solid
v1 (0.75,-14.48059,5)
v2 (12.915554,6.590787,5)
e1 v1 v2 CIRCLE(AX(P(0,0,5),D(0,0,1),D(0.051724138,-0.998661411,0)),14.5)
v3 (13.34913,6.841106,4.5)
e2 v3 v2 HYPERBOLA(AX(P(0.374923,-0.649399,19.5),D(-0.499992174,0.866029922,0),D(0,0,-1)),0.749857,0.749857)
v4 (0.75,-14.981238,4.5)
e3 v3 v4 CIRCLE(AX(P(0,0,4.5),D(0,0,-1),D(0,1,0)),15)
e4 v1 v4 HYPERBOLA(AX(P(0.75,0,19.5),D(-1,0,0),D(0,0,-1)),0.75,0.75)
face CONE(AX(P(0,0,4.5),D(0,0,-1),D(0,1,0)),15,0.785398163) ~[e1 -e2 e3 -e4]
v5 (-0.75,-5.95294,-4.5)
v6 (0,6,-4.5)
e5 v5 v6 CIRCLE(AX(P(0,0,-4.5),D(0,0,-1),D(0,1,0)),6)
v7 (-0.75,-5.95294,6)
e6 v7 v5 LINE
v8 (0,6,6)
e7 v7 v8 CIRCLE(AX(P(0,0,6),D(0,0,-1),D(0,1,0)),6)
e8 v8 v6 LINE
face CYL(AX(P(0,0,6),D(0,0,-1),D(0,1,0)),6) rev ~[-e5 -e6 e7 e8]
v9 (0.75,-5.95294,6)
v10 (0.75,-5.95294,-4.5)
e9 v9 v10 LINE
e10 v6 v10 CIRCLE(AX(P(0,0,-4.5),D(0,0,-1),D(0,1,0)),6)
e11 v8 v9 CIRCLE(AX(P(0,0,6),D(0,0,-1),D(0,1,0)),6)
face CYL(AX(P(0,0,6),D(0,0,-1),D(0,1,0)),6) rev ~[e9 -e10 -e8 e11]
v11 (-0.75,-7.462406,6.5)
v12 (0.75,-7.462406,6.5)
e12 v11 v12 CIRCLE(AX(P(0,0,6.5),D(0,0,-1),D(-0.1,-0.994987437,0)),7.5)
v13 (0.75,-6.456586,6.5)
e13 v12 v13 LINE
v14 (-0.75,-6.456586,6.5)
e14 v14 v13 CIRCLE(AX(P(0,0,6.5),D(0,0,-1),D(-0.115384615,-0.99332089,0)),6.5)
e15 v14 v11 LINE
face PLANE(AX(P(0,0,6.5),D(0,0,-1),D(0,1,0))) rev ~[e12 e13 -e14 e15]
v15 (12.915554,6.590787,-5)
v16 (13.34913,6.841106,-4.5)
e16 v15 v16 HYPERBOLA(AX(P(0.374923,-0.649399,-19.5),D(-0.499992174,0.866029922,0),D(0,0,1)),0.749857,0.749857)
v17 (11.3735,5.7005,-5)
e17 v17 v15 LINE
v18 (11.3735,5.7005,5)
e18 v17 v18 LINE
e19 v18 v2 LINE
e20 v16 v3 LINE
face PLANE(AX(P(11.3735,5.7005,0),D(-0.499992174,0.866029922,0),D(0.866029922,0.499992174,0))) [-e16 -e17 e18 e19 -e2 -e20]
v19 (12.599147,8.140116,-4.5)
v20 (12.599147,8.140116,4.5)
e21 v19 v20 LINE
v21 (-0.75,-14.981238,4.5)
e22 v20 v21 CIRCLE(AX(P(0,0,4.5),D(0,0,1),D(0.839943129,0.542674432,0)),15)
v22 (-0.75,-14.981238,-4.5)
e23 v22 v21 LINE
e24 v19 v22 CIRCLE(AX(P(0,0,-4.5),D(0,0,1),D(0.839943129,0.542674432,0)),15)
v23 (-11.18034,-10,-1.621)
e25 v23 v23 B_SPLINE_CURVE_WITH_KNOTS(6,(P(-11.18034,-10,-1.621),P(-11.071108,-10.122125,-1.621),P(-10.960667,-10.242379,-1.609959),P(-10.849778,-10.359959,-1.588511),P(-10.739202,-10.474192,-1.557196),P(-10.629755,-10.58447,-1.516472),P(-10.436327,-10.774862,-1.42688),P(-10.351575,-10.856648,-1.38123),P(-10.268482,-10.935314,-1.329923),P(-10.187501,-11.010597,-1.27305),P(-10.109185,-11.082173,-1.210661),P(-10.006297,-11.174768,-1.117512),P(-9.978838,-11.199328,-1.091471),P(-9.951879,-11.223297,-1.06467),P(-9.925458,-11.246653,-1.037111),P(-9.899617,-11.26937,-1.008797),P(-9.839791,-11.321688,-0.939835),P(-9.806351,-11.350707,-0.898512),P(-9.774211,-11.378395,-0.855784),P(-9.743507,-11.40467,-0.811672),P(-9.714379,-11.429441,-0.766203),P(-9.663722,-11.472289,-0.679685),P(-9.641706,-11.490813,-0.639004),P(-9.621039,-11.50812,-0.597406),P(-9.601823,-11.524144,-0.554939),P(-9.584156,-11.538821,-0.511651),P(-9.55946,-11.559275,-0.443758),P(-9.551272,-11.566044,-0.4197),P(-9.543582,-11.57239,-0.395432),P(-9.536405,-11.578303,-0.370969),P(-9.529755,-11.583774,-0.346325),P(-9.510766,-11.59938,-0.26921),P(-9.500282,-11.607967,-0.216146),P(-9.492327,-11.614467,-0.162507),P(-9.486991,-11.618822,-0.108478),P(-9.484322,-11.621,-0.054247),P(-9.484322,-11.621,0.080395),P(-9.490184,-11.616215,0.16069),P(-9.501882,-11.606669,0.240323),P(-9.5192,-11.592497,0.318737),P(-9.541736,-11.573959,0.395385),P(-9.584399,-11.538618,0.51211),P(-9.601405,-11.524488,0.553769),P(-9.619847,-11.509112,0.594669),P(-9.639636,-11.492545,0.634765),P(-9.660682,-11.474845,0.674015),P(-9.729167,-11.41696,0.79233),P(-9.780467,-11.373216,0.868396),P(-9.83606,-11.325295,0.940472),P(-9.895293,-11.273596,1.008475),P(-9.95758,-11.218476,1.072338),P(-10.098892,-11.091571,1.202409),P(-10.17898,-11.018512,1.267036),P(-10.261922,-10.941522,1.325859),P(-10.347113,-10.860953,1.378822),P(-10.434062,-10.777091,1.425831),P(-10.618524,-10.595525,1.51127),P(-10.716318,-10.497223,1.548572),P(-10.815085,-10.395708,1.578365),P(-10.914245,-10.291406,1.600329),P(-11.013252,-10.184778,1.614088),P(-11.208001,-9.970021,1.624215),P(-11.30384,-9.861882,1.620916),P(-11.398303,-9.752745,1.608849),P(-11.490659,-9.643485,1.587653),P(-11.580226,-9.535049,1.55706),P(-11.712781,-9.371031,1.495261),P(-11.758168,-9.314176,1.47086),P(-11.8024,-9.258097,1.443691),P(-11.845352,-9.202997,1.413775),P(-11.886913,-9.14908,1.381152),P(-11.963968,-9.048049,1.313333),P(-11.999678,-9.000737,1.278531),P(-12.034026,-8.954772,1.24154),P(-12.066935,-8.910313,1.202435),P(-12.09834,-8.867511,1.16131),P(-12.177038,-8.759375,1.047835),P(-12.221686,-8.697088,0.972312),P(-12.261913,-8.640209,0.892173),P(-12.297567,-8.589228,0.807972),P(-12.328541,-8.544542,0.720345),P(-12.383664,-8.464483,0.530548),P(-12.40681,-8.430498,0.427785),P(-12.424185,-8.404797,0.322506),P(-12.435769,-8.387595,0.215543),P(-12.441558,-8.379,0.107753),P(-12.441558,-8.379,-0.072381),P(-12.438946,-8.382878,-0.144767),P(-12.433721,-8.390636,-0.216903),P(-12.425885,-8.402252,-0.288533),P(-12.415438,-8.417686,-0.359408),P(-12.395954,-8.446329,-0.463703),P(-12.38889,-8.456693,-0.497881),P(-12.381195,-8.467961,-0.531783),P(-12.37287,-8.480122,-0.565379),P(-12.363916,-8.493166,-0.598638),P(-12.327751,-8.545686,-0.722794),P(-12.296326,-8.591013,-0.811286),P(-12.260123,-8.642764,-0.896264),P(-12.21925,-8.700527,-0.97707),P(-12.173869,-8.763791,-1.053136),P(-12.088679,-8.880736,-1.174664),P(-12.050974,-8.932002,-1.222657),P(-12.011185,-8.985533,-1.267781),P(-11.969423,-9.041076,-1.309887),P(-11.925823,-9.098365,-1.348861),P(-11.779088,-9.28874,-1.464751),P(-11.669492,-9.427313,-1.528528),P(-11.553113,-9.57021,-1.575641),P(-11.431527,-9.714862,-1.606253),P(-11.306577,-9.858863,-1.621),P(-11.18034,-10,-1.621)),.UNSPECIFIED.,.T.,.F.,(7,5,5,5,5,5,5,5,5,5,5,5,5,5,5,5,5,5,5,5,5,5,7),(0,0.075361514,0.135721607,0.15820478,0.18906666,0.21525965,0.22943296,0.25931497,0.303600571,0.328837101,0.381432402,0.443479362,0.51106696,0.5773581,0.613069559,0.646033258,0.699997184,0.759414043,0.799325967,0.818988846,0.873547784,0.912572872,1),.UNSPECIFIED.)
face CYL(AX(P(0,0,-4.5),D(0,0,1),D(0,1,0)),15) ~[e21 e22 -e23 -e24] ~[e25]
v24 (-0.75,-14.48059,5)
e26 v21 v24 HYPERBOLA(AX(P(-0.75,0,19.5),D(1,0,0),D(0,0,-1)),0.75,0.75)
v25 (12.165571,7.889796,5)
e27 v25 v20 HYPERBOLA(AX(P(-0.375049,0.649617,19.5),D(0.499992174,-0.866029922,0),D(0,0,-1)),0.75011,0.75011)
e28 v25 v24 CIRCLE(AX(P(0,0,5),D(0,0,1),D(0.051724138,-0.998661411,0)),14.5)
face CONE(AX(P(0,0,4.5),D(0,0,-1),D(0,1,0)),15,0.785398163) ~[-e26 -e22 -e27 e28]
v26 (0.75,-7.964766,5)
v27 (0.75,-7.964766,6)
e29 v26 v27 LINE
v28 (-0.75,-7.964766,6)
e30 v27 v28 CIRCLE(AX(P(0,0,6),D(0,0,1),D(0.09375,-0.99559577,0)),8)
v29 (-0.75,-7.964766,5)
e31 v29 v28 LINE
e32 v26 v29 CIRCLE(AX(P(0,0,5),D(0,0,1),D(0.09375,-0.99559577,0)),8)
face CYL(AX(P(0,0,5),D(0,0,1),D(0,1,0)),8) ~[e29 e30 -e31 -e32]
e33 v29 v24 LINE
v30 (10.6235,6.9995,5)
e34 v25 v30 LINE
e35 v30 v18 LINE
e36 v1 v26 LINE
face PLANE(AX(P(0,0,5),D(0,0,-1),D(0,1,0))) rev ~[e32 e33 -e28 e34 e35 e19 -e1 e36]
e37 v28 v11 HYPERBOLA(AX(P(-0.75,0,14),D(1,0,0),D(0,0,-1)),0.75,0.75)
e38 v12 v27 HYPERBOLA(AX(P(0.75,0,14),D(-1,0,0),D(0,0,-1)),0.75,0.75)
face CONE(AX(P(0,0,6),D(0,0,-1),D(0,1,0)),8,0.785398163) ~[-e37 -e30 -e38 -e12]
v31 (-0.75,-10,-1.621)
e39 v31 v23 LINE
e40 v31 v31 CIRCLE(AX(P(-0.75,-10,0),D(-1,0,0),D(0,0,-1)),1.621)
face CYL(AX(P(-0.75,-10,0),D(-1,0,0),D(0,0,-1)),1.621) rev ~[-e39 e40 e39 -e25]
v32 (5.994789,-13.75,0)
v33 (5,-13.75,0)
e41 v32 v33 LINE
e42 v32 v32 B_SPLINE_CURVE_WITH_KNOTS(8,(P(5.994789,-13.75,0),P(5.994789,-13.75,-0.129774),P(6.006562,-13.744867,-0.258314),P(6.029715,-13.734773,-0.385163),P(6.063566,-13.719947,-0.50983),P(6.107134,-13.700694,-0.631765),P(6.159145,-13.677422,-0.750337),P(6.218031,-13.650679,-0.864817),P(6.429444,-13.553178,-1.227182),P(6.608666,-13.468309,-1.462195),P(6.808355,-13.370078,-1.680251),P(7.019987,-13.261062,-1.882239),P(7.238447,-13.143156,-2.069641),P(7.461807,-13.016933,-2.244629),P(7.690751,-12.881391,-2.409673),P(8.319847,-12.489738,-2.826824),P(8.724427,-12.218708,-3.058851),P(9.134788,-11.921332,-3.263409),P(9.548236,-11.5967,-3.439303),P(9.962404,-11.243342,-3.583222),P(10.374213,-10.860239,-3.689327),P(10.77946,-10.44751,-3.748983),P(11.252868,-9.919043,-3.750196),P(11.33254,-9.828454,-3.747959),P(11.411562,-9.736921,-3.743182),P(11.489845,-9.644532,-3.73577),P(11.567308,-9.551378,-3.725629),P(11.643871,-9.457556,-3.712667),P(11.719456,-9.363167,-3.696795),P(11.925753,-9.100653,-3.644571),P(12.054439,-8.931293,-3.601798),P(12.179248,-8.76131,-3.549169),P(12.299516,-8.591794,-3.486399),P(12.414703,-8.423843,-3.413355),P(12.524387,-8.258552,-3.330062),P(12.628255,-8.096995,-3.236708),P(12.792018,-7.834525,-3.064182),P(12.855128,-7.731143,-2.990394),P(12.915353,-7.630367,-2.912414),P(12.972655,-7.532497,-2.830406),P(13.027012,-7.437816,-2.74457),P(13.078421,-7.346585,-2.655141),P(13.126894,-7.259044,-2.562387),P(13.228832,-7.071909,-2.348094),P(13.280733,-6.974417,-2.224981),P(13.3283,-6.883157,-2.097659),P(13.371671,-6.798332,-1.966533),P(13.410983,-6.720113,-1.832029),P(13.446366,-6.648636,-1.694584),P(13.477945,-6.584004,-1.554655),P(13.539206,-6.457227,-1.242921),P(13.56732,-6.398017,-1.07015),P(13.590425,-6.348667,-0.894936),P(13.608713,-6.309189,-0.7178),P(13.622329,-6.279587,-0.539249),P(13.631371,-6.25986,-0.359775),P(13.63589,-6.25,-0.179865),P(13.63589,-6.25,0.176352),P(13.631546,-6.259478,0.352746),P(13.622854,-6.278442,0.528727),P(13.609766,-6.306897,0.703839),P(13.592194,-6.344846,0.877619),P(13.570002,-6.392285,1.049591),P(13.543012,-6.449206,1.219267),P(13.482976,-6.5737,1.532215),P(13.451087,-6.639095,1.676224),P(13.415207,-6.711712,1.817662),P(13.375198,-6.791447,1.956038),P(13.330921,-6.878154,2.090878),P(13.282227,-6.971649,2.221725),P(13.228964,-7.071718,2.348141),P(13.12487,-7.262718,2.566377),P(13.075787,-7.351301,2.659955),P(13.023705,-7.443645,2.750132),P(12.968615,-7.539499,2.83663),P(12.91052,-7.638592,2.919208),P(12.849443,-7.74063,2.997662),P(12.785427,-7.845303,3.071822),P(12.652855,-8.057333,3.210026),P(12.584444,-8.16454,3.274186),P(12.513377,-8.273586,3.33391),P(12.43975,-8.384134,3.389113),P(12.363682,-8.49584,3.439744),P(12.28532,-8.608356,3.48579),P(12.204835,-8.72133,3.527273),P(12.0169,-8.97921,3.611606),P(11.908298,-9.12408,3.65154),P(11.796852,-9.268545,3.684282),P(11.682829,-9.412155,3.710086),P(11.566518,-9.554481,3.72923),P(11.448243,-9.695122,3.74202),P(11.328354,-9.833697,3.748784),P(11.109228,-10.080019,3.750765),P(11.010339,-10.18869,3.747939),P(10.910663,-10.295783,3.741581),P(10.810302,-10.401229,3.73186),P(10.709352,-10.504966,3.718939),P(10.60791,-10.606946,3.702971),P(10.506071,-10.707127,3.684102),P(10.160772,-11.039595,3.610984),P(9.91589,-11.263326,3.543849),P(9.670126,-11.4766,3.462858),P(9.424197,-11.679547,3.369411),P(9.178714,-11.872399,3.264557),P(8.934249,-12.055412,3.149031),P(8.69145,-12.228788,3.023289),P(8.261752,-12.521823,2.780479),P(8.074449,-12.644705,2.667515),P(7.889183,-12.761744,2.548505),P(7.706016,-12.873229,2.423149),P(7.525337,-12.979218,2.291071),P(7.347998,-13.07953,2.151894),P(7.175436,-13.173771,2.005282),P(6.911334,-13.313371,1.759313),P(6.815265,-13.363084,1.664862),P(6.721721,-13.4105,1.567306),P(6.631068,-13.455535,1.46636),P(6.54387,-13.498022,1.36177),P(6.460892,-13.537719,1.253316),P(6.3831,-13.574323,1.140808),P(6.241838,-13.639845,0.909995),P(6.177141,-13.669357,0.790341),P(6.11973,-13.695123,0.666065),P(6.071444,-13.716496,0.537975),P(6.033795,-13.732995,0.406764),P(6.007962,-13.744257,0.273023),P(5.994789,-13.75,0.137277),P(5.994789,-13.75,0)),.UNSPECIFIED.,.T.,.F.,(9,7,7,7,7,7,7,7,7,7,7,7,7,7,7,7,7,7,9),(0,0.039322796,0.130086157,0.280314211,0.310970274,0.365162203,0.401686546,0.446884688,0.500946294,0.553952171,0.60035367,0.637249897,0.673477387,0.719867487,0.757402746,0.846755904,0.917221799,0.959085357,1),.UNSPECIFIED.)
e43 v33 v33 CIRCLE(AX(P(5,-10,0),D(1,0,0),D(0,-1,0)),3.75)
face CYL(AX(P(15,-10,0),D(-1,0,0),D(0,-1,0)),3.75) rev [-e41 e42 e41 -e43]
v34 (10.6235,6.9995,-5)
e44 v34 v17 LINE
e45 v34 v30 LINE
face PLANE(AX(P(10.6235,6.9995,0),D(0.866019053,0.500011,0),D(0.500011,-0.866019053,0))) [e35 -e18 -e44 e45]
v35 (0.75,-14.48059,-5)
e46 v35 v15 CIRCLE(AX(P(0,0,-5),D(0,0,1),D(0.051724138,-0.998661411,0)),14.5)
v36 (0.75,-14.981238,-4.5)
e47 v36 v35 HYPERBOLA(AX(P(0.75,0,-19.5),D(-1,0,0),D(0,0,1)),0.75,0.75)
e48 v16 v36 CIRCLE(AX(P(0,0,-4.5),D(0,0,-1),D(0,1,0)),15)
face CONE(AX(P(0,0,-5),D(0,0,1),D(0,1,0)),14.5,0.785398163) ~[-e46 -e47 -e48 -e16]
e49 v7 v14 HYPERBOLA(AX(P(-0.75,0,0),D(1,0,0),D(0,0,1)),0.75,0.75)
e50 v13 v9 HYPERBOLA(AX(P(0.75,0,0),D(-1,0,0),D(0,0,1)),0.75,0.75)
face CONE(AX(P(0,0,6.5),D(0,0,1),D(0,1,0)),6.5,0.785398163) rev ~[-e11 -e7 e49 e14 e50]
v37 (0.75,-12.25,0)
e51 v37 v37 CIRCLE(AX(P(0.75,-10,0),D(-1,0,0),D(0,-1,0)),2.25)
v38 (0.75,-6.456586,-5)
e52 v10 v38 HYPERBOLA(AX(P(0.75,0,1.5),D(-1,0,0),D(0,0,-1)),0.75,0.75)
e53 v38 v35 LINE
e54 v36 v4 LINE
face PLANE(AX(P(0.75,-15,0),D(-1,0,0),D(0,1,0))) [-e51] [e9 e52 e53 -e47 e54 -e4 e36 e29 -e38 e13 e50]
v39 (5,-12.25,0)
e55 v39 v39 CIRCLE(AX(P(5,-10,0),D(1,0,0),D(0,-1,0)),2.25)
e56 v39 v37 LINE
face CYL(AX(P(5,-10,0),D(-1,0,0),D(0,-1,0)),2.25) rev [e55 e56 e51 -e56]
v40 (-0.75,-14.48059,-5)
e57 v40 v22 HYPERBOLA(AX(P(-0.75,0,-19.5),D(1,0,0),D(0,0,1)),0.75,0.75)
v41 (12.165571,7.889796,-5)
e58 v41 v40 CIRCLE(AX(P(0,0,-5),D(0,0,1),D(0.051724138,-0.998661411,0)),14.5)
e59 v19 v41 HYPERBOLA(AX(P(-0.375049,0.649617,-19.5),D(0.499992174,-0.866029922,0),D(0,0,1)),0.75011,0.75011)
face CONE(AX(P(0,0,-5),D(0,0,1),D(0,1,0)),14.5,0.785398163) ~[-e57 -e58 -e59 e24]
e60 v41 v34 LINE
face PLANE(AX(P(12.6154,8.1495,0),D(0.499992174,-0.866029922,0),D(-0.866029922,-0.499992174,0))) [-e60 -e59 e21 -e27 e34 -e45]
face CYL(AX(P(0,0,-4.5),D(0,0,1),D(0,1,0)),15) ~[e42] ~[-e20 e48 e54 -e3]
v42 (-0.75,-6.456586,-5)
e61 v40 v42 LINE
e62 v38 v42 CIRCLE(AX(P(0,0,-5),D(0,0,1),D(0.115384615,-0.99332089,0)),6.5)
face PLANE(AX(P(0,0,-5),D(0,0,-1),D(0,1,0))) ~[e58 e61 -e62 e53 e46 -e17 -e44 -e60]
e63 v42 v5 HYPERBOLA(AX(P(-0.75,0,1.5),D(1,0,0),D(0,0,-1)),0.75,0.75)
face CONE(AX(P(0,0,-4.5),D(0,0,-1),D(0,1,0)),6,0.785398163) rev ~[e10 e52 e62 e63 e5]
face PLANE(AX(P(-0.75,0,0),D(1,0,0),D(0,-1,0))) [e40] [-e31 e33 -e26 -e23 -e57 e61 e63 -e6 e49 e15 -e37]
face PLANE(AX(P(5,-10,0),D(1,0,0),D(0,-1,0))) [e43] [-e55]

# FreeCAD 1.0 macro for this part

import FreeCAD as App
import Part
import Sketcher

V = App.Vector
Q = App.Units.Quantity

doc = App.newDocument("Part")
body = doc.addObject("PartDesign::Body", "Body")

# Sketch on YZ plane
sketch1 = body.newObject("Sketcher::SketchObject", "Sketch")
sketch1.AttachmentSupport = (doc.getObject("YZ_Plane"), [""])
sketch1.MapMode = "FlatFace"
sketch1.addGeometry(Part.LineSegment(V(8, 6, 0), V(7.5, 6.5, 0)), False)
sketch1.addGeometry(Part.LineSegment(V(7.5, 6.5, 0), V(6.5, 6.5, 0)), False)
sketch1.addGeometry(Part.LineSegment(V(6.5, 6.5, 0), V(6, 6, 0)), False)
sketch1.addGeometry(Part.LineSegment(V(6, 6, 0), V(6, -4.5, 0)), False)
sketch1.addGeometry(Part.LineSegment(V(6, -4.5, 0), V(6.5, -5, 0)), False)
sketch1.addGeometry(Part.LineSegment(V(6.5, -5, 0), V(14.5, -5, 0)), False)
sketch1.addGeometry(Part.LineSegment(V(14.5, -5, 0), V(15, -4.5, 0)), False)
sketch1.addGeometry(Part.LineSegment(V(15, -4.5, 0), V(15, 4.5, 0)), False)
sketch1.addGeometry(Part.LineSegment(V(15, 4.5, 0), V(14.5, 5, 0)), False)
sketch1.addGeometry(Part.LineSegment(V(14.5, 5, 0), V(8, 5, 0)), False)
sketch1.addGeometry(Part.LineSegment(V(8, 5, 0), V(8, 6, 0)), False)
sketch1.addConstraint(Sketcher.Constraint("Coincident", 0, 2, 1, 1))
sketch1.addConstraint(Sketcher.Constraint("Coincident", 1, 2, 2, 1))
sketch1.addConstraint(Sketcher.Constraint("Coincident", 2, 2, 3, 1))
sketch1.addConstraint(Sketcher.Constraint("Coincident", 3, 2, 4, 1))
sketch1.addConstraint(Sketcher.Constraint("Coincident", 4, 2, 5, 1))
sketch1.addConstraint(Sketcher.Constraint("Coincident", 5, 2, 6, 1))
sketch1.addConstraint(Sketcher.Constraint("Coincident", 6, 2, 7, 1))
sketch1.addConstraint(Sketcher.Constraint("Coincident", 7, 2, 8, 1))
sketch1.addConstraint(Sketcher.Constraint("Coincident", 8, 2, 9, 1))
sketch1.addConstraint(Sketcher.Constraint("Coincident", 9, 2, 10, 1))
sketch1.addConstraint(Sketcher.Constraint("Coincident", 10, 2, 0, 1))
sketch1.addConstraint(Sketcher.Constraint("Horizontal", 1))
sketch1.addConstraint(Sketcher.Constraint("Vertical", 3))
sketch1.addConstraint(Sketcher.Constraint("Horizontal", 5))
sketch1.addConstraint(Sketcher.Constraint("Vertical", 7))
sketch1.addConstraint(Sketcher.Constraint("Horizontal", 9))
sketch1.addConstraint(Sketcher.Constraint("Vertical", 10))
sketch1.addConstraint(Sketcher.Constraint("Symmetric", 5, 2, 8, 2, -1))
sketch1.addConstraint(Sketcher.Constraint("Perpendicular", 0, 2))
sketch1.addConstraint(Sketcher.Constraint("Perpendicular", 2, 4))
sketch1.addConstraint(Sketcher.Constraint("Perpendicular", 4, 6))
sketch1.addConstraint(Sketcher.Constraint("Perpendicular", 6, 8))
sketch1.addConstraint(Sketcher.Constraint("Horizontal", 3, 2, 6, 2))
sketch1.addConstraint(Sketcher.Constraint("Horizontal", 2, 2, 10, 2))
sketch1.addConstraint(Sketcher.Constraint("Vertical", 1, 2, 4, 2))
sketch1.addConstraint(Sketcher.Constraint("Equal", 1, 10))
sketch1.addConstraint(Sketcher.Constraint("Equal", 0, 2))
sketch1.addConstraint(Sketcher.Constraint("DistanceX", 1, 2, 1, 1, Q("1 mm")))
sketch1.addConstraint(Sketcher.Constraint("DistanceX", 5, 1, 5, 2, Q("8 mm")))
sketch1.addConstraint(Sketcher.Constraint("DistanceY", 7, 1, 7, 2, Q("9 mm")))
sketch1.addConstraint(Sketcher.Constraint("DistanceX", 9, 2, 9, 1, Q("6.5 mm")))
sketch1.addConstraint(Sketcher.Constraint("DistanceX", -1, 1, 2, 2, Q("6 mm")))
revolution = body.newObject("PartDesign::Revolution", "Revolution")
revolution.Profile = sketch1
revolution.ReferenceAxis = (sketch1, ["V_Axis"])
revolution.Angle = 360

# Sketch on XY plane
sketch2 = body.newObject("Sketcher::SketchObject", "Sketch001")
sketch2.AttachmentSupport = (doc.getObject("XY_Plane"), [""])
sketch2.MapMode = "FlatFace"
sketch2.addGeometry(Part.LineSegment(V(-0.8, 0, 0), V(-0.8, -15, 0)), False)
sketch2.addGeometry(Part.LineSegment(V(-0.8, -15, 0), V(0.8, -15, 0)), False)
sketch2.addGeometry(Part.LineSegment(V(0.8, -15, 0), V(0.8, 0, 0)), False)
sketch2.addGeometry(Part.LineSegment(V(0.8, 0, 0), V(-0.8, 0, 0)), False)
sketch2.addConstraint(Sketcher.Constraint("Coincident", 0, 2, 1, 1))
sketch2.addConstraint(Sketcher.Constraint("Coincident", 1, 2, 2, 1))
sketch2.addConstraint(Sketcher.Constraint("Coincident", 2, 2, 3, 1))
sketch2.addConstraint(Sketcher.Constraint("Coincident", 3, 2, 0, 1))
sketch2.addConstraint(Sketcher.Constraint("Vertical", 0))
sketch2.addConstraint(Sketcher.Constraint("Horizontal", 1))
sketch2.addConstraint(Sketcher.Constraint("Vertical", 2))
sketch2.addConstraint(Sketcher.Constraint("Horizontal", 3))
sketch2.addConstraint(Sketcher.Constraint("Symmetric", 2, 2, 3, 2, -1, 1))
sketch2.addConstraint(Sketcher.Constraint("DistanceY", 0, 2, 0, 1, Q("15 mm")))
sketch2.addConstraint(Sketcher.Constraint("DistanceX", 1, 1, 1, 2, Q("1.5 mm")))
pocket1 = body.newObject("PartDesign::Pocket", "Pocket")
pocket1.Profile = sketch2
pocket1.Length = 23
pocket1.Midplane = True

# Sketch on XY plane
sketch3 = body.newObject("Sketcher::SketchObject", "Sketch002")
sketch3.AttachmentSupport = (doc.getObject("XY_Plane"), [""])
sketch3.MapMode = "FlatFace"
sketch3.addGeometry(Part.LineSegment(V(15, -10, 0), V(0, -10, 0)), False)
sketch3.addGeometry(Part.LineSegment(V(0, -10, 0), V(0, -12.2, 0)), False)
sketch3.addGeometry(Part.LineSegment(V(0, -12.2, 0), V(5, -12.2, 0)), False)
sketch3.addGeometry(Part.LineSegment(V(5, -12.2, 0), V(5, -13.8, 0)), False)
sketch3.addGeometry(Part.LineSegment(V(5, -13.8, 0), V(15, -13.8, 0)), False)
sketch3.addGeometry(Part.LineSegment(V(15, -13.8, 0), V(15, -10, 0)), False)
sketch3.addGeometry(Part.LineSegment(V(0, -10, 0), V(15, -10, 0)), True)  # axis
sketch3.addConstraint(Sketcher.Constraint("Coincident", 0, 2, 1, 1))
sketch3.addConstraint(Sketcher.Constraint("Coincident", 1, 2, 2, 1))
sketch3.addConstraint(Sketcher.Constraint("Coincident", 2, 2, 3, 1))
sketch3.addConstraint(Sketcher.Constraint("Coincident", 3, 2, 4, 1))
sketch3.addConstraint(Sketcher.Constraint("Coincident", 4, 2, 5, 1))
sketch3.addConstraint(Sketcher.Constraint("Coincident", 5, 2, 0, 1))
sketch3.addConstraint(Sketcher.Constraint("Horizontal", 0))
sketch3.addConstraint(Sketcher.Constraint("Vertical", 1))
sketch3.addConstraint(Sketcher.Constraint("Horizontal", 2))
sketch3.addConstraint(Sketcher.Constraint("Vertical", 3))
sketch3.addConstraint(Sketcher.Constraint("Horizontal", 4))
sketch3.addConstraint(Sketcher.Constraint("Vertical", 5))
sketch3.addConstraint(Sketcher.Constraint("Horizontal", 6))
sketch3.addConstraint(Sketcher.Constraint("Coincident", 6, 1, 0, 2))
sketch3.addConstraint(Sketcher.Constraint("PointOnObject", 0, 2, -2))
sketch3.addConstraint(Sketcher.Constraint("Vertical", 4, 2, 6, 2))
sketch3.addConstraint(Sketcher.Constraint("DistanceX", 0, 2, 0, 1, Q("15 mm")))
sketch3.addConstraint(Sketcher.Constraint("DistanceX", 2, 1, 2, 2, Q("5 mm")))
sketch3.addConstraint(Sketcher.Constraint("DistanceY", 3, 2, 3, 1, Q("1.5 mm")))
sketch3.addConstraint(Sketcher.Constraint("DistanceY", 0, 2, -1, 1, Q("10 mm")))
sketch3.addConstraint(Sketcher.Constraint("DistanceY", 1, 2, 1, 1, Q("2.25 mm")))
groove = body.newObject("PartDesign::Groove", "Groove")
groove.Profile = sketch3
groove.ReferenceAxis = (sketch3, ["Axis0"])
groove.Angle = 360

# Sketch on YZ plane
sketch4 = body.newObject("Sketcher::SketchObject", "Sketch003")
sketch4.AttachmentSupport = (doc.getObject("YZ_Plane"), [""])
sketch4.MapMode = "FlatFace"
sketch4.AttachmentOffset = App.Placement(V(0, 0, -0.75), App.Rotation())
sketch4.addGeometry(Part.Circle(V(-10, 0, 0), V(0, 0, 1), 1.6), False)
sketch4.addConstraint(Sketcher.Constraint("PointOnObject", 0, 3, -1))
sketch4.addConstraint(Sketcher.Constraint("Diameter", 0, Q("3.242 mm")))
sketch4.addConstraint(Sketcher.Constraint("DistanceX", 0, 3, -1, 1, Q("10 mm")))
doc.recompute()
hole = body.newObject("PartDesign::Hole", "Hole")
hole.Profile = sketch4
hole.ThreadType = "None"
hole.Diameter = 3.242
hole.DepthType = "Dimension"
hole.Depth = 15
hole.DrillPoint = "Flat"

# Sketch on XY plane
sketch5 = body.newObject("Sketcher::SketchObject", "Sketch004")
sketch5.AttachmentSupport = (doc.getObject("XY_Plane"), [""])
sketch5.MapMode = "FlatFace"
sketch5.addGeometry(Part.LineSegment(V(12.6, 8.1, 0), V(10.6, 7, 0)), False)
sketch5.addGeometry(Part.LineSegment(V(10.6, 7, 0), V(11.4, 5.7, 0)), False)
sketch5.addGeometry(Part.LineSegment(V(11.4, 5.7, 0), V(13.4, 6.9, 0)), False)
sketch5.addGeometry(Part.LineSegment(V(13.4, 6.9, 0), V(12.6, 8.1, 0)), False)
sketch5.addConstraint(Sketcher.Constraint("Coincident", 0, 2, 1, 1))
sketch5.addConstraint(Sketcher.Constraint("Coincident", 1, 2, 2, 1))
sketch5.addConstraint(Sketcher.Constraint("Coincident", 2, 2, 3, 1))
sketch5.addConstraint(Sketcher.Constraint("Coincident", 3, 2, 0, 1))
sketch5.addConstraint(Sketcher.Constraint("Perpendicular", 0, 1))
sketch5.addConstraint(Sketcher.Constraint("Perpendicular", 1, 2))
sketch5.addConstraint(Sketcher.Constraint("Perpendicular", 2, 3))
sketch5.addConstraint(Sketcher.Constraint("Angle", 0, Q("-150.0005 deg")))
sketch5.addConstraint(Sketcher.Constraint("Distance", 0, Q("2.3 mm")))
sketch5.addConstraint(Sketcher.Constraint("Distance", 1, Q("1.5 mm")))
sketch5.addConstraint(Sketcher.Constraint("DistanceX", -1, 1, 0, 2, Q("10.6235 mm")))
sketch5.addConstraint(Sketcher.Constraint("DistanceY", -1, 1, 0, 2, Q("6.9995 mm")))
pocket2 = body.newObject("PartDesign::Pocket", "Pocket001")
pocket2.Profile = sketch5
pocket2.Length = 10
pocket2.Midplane = True

doc.recompute()
